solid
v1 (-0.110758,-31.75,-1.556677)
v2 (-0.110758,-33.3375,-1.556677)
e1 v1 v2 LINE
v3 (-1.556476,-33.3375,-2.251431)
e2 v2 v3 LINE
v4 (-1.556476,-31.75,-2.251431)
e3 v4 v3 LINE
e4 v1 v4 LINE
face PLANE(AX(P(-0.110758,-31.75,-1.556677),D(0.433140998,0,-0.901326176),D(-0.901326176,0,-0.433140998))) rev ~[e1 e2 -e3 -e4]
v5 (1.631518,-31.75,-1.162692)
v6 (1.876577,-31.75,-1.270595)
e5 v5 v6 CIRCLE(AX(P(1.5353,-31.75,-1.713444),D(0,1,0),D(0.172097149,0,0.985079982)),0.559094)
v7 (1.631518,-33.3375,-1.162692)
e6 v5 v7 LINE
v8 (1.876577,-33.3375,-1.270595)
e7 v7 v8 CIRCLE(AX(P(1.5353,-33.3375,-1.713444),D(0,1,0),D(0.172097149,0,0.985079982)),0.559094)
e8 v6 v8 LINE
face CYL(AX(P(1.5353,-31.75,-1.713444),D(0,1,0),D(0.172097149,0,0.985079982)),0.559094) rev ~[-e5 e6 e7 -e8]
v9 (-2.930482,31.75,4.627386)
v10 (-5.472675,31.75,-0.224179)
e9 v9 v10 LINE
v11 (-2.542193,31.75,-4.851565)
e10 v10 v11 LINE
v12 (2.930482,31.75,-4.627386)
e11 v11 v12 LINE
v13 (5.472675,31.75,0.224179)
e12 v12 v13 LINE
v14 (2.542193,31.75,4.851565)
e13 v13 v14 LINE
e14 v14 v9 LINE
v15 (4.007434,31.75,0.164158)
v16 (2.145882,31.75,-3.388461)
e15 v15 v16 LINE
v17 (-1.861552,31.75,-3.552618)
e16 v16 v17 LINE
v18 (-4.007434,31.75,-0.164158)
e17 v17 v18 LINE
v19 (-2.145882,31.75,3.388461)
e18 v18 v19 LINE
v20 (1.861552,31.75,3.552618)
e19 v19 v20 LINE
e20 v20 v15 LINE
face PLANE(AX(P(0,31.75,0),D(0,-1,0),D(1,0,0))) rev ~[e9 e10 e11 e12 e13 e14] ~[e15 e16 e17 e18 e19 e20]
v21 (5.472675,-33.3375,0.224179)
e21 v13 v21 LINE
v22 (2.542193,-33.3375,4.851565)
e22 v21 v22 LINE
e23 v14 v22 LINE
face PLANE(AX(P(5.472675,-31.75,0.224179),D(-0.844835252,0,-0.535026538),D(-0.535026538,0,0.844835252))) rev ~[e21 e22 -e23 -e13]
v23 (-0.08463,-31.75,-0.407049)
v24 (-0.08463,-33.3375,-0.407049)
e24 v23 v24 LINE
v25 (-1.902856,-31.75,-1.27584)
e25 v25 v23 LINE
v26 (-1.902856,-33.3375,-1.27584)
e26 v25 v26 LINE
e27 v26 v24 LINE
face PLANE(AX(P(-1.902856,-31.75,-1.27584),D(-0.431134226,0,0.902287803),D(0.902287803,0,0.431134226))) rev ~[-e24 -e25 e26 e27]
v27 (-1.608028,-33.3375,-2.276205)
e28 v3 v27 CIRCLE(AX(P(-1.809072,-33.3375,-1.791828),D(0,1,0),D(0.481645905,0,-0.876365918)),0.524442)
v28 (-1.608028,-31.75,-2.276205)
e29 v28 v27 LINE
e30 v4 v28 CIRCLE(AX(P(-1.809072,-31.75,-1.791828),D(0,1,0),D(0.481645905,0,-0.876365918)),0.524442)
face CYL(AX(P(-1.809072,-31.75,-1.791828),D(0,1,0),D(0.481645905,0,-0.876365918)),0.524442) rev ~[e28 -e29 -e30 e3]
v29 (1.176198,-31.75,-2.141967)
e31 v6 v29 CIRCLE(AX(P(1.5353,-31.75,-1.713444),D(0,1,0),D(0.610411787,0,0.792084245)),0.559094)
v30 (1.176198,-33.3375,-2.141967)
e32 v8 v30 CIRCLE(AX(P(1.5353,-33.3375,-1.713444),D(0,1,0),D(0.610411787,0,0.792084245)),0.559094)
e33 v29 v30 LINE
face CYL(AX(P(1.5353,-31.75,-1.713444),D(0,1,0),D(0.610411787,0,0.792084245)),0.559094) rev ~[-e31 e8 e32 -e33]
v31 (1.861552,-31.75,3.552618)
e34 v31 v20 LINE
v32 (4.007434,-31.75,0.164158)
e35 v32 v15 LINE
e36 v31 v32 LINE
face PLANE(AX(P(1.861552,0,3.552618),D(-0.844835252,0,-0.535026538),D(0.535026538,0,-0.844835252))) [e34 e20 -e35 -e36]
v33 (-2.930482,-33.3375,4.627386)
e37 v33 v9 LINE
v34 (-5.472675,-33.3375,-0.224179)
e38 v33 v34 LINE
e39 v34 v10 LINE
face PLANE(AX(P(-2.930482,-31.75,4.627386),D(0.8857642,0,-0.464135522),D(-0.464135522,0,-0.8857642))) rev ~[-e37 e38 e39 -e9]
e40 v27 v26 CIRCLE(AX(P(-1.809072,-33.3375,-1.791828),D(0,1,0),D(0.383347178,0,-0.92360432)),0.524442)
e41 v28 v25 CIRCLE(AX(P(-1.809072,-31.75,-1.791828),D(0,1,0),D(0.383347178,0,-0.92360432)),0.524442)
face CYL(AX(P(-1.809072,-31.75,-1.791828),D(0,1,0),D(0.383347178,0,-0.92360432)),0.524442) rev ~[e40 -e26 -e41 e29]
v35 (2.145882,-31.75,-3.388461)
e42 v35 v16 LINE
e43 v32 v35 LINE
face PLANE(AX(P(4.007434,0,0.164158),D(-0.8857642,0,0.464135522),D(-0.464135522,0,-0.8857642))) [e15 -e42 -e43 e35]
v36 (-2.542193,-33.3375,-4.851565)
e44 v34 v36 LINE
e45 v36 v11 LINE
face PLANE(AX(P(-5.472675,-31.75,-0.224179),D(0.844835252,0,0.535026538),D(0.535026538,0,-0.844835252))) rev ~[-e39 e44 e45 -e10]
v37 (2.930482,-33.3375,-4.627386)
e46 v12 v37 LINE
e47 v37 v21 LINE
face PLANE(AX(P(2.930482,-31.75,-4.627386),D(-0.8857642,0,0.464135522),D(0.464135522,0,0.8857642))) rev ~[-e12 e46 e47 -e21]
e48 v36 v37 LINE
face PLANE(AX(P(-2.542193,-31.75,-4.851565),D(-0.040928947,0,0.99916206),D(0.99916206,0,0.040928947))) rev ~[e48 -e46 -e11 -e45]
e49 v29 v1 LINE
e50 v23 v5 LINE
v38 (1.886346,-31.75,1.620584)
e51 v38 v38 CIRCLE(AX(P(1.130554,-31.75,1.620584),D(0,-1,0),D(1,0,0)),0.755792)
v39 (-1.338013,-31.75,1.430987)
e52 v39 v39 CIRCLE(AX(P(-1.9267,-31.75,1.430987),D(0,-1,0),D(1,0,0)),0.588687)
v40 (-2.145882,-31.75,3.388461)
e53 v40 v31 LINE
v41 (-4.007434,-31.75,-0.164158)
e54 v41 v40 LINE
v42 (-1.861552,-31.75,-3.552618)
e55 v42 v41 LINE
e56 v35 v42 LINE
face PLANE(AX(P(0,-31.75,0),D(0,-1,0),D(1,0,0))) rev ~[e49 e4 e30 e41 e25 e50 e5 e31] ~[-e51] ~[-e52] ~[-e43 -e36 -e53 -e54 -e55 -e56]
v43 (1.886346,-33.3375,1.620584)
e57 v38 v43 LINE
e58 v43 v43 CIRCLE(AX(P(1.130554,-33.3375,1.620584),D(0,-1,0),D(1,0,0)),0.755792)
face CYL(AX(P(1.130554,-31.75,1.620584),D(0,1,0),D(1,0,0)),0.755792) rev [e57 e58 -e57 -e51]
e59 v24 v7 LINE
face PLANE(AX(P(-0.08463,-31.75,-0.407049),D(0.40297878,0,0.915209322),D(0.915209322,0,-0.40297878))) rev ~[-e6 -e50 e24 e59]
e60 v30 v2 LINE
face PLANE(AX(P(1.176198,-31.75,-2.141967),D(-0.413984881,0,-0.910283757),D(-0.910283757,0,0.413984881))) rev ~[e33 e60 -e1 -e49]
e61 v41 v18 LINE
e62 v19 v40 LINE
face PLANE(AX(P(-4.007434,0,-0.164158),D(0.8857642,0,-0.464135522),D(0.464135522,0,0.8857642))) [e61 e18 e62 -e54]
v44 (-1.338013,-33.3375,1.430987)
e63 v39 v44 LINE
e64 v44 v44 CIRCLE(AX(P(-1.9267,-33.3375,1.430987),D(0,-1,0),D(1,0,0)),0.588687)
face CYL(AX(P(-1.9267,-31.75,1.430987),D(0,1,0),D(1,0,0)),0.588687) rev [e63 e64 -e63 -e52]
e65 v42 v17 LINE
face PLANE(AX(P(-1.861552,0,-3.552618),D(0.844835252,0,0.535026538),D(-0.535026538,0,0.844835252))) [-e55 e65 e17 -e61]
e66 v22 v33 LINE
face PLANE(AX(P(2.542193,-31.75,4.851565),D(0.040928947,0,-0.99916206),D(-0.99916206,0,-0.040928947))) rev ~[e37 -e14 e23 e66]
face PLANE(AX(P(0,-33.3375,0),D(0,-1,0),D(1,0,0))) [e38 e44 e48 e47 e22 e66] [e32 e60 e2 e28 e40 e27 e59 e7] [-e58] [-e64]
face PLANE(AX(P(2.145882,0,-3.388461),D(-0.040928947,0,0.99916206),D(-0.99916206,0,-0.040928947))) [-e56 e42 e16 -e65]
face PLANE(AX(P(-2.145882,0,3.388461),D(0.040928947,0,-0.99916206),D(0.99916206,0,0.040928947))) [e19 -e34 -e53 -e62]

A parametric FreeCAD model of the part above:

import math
import FreeCAD as App
import Part
import Sketcher
Q = App.Units.Quantity


def add_polygon(sketch, points):
    """Adds a closed chain of lines whose ends are joined by coincident constraints."""
    first, n = sketch.GeometryCount, len(points)
    for a, b in zip(points, points[1:] + points[:1]):
        sketch.addGeometry(Part.LineSegment(App.Vector(*a, 0), App.Vector(*b, 0)), False)
    for i in range(n):
        sketch.addConstraint(Sketcher.Constraint("Coincident", first + i, 2, first + (i + 1) % n, 1))

doc = App.newDocument("Part")
params = doc.addObject("Spreadsheet::Sheet", "Params")
for row, (alias, value) in enumerate([
    ("pad1_length", "2.5 in"),
    ("pad2_length", "0.0625 in"),
], start=1):
    params.set(f"A{row}", alias)
    params.set(f"B{row}", "=" + value)
    params.setAlias(f"B{row}", alias)

body = doc.addObject("PartDesign::Body", "Body")

sketch1 = body.newObject("Sketcher::SketchObject", "Sketch")
sketch1.AttachmentSupport = (doc.getObject("XZ_Plane"), [""])
sketch1.MapMode = "FlatFace"
add_polygon(sketch1, [(5.472675, 0.224179), (2.542193, 4.851565), (-2.930482, 4.627386), (-5.472675, -0.224179), (-2.542193, -4.851565), (2.930482, -4.627386)])
add_polygon(sketch1, [(-4.007434, -0.164158), (-2.145882, 3.388461), (1.861552, 3.552618), (4.007434, 0.164158), (2.145882, -3.388461), (-1.861552, -3.552618)])
sketch1.addConstraint([
    Sketcher.Constraint("Symmetric", 0, 2, 3, 2, -1, 1),
    Sketcher.Constraint("Symmetric", 1, 2, 4, 2, -1, 1),
    Sketcher.Constraint("Symmetric", 2, 2, 5, 2, -1, 1),
    Sketcher.Constraint("Symmetric", 6, 2, 9, 2, -1, 1),
    Sketcher.Constraint("Symmetric", 7, 2, 10, 2, -1, 1),
    Sketcher.Constraint("Symmetric", 8, 2, 11, 2, -1, 1),
    Sketcher.Constraint("Parallel", 5, 6),
    Sketcher.Constraint("Parallel", 4, 7),
    Sketcher.Constraint("Parallel", 3, 8),
    Sketcher.Constraint("Equal", 0, 1),
    Sketcher.Constraint("Equal", 1, 2),
    Sketcher.Constraint("Equal", 6, 7),
    Sketcher.Constraint("Equal", 7, 8),
    Sketcher.Constraint("DistanceX", 1, 2, 6, 2, Q("0.7846 mm")),
    Sketcher.Constraint("DistanceX", 1, 2, -1, 1, Q("2.930482 mm")),
    Sketcher.Constraint("DistanceY", 2, 2, -1, 1, Q("0.224179 mm")),
    Sketcher.Constraint("DistanceY", -1, 1, 6, 2, Q("3.388461 mm")),
    Sketcher.Constraint("DistanceY", -1, 1, 7, 2, Q("3.552618 mm")),
])
pad1 = body.newObject("PartDesign::Pad", "Pad")
pad1.Profile = sketch1
pad1.setExpression("Length", "Params.pad1_length")
pad1.Midplane = True

sketch2 = body.newObject("Sketcher::SketchObject", "Sketch001")
sketch2.AttachmentSupport = (doc.getObject("XZ_Plane"), [""])
sketch2.MapMode = "FlatFace"
sketch2.AttachmentOffset = App.Placement(App.Vector(0, 0, 1.25 * 25.4), App.Rotation())
add_polygon(sketch2, [(-2.542193, -4.851565), (2.930482, -4.627386), (5.472675, 0.224179), (2.542193, 4.851565), (-2.930482, 4.627386), (-5.472675, -0.224179)])
sketch2.addGeometry(Part.ArcOfCircle(Part.Circle(App.Vector(-1.809072, -1.791828, 0), App.Vector(0, 0, 1), 0.524442), math.radians(-67.458831), math.radians(-61.207046)), False)
sketch2.addGeometry(Part.ArcOfCircle(Part.Circle(App.Vector(-1.809072, -1.791828, 0), App.Vector(0, 0, 1), 0.524442), math.radians(100.301432), math.radians(292.541169)), False)
sketch2.addGeometry(Part.LineSegment(App.Vector(-1.902856, -1.27584, 0), App.Vector(-0.08463, -0.407049, 0)), False)
sketch2.addGeometry(Part.LineSegment(App.Vector(-0.08463, -0.407049, 0), App.Vector(1.631518, -1.162692, 0)), False)
sketch2.addGeometry(Part.ArcOfCircle(Part.Circle(App.Vector(1.5353, -1.713444, 0), App.Vector(0, 0, 1), 0.559094), math.radians(52.380716), math.radians(80.090226)), False)
sketch2.addGeometry(Part.ArcOfCircle(Part.Circle(App.Vector(1.5353, -1.713444, 0), App.Vector(0, 0, 1), 0.559094), math.radians(-129.963001), math.radians(52.380716)), False)
sketch2.addGeometry(Part.LineSegment(App.Vector(1.176198, -2.141967, 0), App.Vector(-0.110758, -1.556677, 0)), False)
sketch2.addGeometry(Part.LineSegment(App.Vector(-0.110758, -1.556677, 0), App.Vector(-1.556476, -2.251431, 0)), False)
sketch2.addGeometry(Part.Circle(App.Vector(-1.9267, 1.430987, 0), App.Vector(0, 0, 1), 0.588687), False)
sketch2.addGeometry(Part.Circle(App.Vector(1.130554, 1.620584, 0), App.Vector(0, 0, 1), 0.755792), False)
sketch2.addConstraint([
    Sketcher.Constraint("Tangent", 6, 1, 7, 2),
    Sketcher.Constraint("Coincident", 7, 1, 8, 1),
    Sketcher.Constraint("Coincident", 8, 2, 9, 1),
    Sketcher.Constraint("Coincident", 9, 2, 10, 2),
    Sketcher.Constraint("Tangent", 10, 1, 11, 2),
    Sketcher.Constraint("Coincident", 11, 1, 12, 1),
    Sketcher.Constraint("Coincident", 12, 2, 13, 1),
    Sketcher.Constraint("Coincident", 13, 2, 6, 2),
    Sketcher.Constraint("Equal", 6, 7),
    Sketcher.Constraint("Equal", 10, 11),
    Sketcher.Constraint("Symmetric", 0, 2, 3, 2, -1, 1),
    Sketcher.Constraint("Symmetric", 1, 2, 4, 2, -1, 1),
    Sketcher.Constraint("Symmetric", 2, 2, 5, 2, -1, 1),
    Sketcher.Constraint("Equal", 0, 1),
    Sketcher.Constraint("Equal", 1, 2),
    Sketcher.Constraint("Radius", 6, Q("0.524442 mm")),
    Sketcher.Constraint("Diameter", 14, Q("1.177374 mm")),
    Sketcher.Constraint("Diameter", 15, Q("1.511584 mm")),
    Sketcher.Constraint("Radius", 10, Q("0.559094 mm")),
    Sketcher.Constraint("DistanceX", -1, 1, 10, 3, Q("1.5353 mm")),
    Sketcher.Constraint("DistanceX", 14, 3, -1, 1, Q("1.9267 mm")),
    Sketcher.Constraint("DistanceY", 14, 3, 3, 2, Q("3.196399 mm")),
    Sketcher.Constraint("DistanceY", 15, 3, 3, 2, Q("3.006802 mm")),
    Sketcher.Constraint("Distance", 8, Q("2.015128 mm")),
    Sketcher.Constraint("Distance", 13, Q("1.60399 mm")),
    Sketcher.Constraint("DistanceX", 6, 3, -1, 1, Q("1.809072 mm")),
    Sketcher.Constraint("DistanceX", -1, 1, 0, 2, Q("2.930482 mm")),
    Sketcher.Constraint("DistanceY", -1, 1, 1, 2, Q("0.224179 mm")),
    Sketcher.Constraint("DistanceX", 6, 1, -1, 1, Q("1.608028 mm")),
    Sketcher.Constraint("DistanceY", 7, 1, -1, 1, Q("1.27584 mm")),
    Sketcher.Constraint("DistanceX", 8, 2, -1, 1, Q("0.08463 mm")),
    Sketcher.Constraint("DistanceY", 8, 2, -1, 1, Q("0.407049 mm")),
    Sketcher.Constraint("DistanceX", -1, 1, 9, 2, Q("1.631518 mm")),
    Sketcher.Constraint("DistanceY", 13, 2, -1, 1, Q("2.251431 mm")),
    Sketcher.Constraint("DistanceY", 10, 3, 14, 3, Q("3.144432 mm")),
    Sketcher.Constraint("DistanceY", 0, 2, 10, 3, Q("2.913942 mm")),
    Sketcher.Constraint("DistanceX", 15, 3, 1, 2, Q("4.342121 mm")),
    Sketcher.Constraint("DistanceX", 15, 3, 2, 2, Q("1.411639 mm")),
    Sketcher.Constraint("DistanceX", 9, 2, 10, 1, Q("0.245059 mm")),
    Sketcher.Constraint("DistanceX", 11, 1, 9, 2, Q("0.45532 mm")),
    Sketcher.Constraint("DistanceY", 11, 1, 12, 2, Q("0.58529 mm")),
])
pad2 = body.newObject("PartDesign::Pad", "Pad001")
pad2.Profile = sketch2
pad2.setExpression("Length", "Params.pad2_length")

doc.recompute()
